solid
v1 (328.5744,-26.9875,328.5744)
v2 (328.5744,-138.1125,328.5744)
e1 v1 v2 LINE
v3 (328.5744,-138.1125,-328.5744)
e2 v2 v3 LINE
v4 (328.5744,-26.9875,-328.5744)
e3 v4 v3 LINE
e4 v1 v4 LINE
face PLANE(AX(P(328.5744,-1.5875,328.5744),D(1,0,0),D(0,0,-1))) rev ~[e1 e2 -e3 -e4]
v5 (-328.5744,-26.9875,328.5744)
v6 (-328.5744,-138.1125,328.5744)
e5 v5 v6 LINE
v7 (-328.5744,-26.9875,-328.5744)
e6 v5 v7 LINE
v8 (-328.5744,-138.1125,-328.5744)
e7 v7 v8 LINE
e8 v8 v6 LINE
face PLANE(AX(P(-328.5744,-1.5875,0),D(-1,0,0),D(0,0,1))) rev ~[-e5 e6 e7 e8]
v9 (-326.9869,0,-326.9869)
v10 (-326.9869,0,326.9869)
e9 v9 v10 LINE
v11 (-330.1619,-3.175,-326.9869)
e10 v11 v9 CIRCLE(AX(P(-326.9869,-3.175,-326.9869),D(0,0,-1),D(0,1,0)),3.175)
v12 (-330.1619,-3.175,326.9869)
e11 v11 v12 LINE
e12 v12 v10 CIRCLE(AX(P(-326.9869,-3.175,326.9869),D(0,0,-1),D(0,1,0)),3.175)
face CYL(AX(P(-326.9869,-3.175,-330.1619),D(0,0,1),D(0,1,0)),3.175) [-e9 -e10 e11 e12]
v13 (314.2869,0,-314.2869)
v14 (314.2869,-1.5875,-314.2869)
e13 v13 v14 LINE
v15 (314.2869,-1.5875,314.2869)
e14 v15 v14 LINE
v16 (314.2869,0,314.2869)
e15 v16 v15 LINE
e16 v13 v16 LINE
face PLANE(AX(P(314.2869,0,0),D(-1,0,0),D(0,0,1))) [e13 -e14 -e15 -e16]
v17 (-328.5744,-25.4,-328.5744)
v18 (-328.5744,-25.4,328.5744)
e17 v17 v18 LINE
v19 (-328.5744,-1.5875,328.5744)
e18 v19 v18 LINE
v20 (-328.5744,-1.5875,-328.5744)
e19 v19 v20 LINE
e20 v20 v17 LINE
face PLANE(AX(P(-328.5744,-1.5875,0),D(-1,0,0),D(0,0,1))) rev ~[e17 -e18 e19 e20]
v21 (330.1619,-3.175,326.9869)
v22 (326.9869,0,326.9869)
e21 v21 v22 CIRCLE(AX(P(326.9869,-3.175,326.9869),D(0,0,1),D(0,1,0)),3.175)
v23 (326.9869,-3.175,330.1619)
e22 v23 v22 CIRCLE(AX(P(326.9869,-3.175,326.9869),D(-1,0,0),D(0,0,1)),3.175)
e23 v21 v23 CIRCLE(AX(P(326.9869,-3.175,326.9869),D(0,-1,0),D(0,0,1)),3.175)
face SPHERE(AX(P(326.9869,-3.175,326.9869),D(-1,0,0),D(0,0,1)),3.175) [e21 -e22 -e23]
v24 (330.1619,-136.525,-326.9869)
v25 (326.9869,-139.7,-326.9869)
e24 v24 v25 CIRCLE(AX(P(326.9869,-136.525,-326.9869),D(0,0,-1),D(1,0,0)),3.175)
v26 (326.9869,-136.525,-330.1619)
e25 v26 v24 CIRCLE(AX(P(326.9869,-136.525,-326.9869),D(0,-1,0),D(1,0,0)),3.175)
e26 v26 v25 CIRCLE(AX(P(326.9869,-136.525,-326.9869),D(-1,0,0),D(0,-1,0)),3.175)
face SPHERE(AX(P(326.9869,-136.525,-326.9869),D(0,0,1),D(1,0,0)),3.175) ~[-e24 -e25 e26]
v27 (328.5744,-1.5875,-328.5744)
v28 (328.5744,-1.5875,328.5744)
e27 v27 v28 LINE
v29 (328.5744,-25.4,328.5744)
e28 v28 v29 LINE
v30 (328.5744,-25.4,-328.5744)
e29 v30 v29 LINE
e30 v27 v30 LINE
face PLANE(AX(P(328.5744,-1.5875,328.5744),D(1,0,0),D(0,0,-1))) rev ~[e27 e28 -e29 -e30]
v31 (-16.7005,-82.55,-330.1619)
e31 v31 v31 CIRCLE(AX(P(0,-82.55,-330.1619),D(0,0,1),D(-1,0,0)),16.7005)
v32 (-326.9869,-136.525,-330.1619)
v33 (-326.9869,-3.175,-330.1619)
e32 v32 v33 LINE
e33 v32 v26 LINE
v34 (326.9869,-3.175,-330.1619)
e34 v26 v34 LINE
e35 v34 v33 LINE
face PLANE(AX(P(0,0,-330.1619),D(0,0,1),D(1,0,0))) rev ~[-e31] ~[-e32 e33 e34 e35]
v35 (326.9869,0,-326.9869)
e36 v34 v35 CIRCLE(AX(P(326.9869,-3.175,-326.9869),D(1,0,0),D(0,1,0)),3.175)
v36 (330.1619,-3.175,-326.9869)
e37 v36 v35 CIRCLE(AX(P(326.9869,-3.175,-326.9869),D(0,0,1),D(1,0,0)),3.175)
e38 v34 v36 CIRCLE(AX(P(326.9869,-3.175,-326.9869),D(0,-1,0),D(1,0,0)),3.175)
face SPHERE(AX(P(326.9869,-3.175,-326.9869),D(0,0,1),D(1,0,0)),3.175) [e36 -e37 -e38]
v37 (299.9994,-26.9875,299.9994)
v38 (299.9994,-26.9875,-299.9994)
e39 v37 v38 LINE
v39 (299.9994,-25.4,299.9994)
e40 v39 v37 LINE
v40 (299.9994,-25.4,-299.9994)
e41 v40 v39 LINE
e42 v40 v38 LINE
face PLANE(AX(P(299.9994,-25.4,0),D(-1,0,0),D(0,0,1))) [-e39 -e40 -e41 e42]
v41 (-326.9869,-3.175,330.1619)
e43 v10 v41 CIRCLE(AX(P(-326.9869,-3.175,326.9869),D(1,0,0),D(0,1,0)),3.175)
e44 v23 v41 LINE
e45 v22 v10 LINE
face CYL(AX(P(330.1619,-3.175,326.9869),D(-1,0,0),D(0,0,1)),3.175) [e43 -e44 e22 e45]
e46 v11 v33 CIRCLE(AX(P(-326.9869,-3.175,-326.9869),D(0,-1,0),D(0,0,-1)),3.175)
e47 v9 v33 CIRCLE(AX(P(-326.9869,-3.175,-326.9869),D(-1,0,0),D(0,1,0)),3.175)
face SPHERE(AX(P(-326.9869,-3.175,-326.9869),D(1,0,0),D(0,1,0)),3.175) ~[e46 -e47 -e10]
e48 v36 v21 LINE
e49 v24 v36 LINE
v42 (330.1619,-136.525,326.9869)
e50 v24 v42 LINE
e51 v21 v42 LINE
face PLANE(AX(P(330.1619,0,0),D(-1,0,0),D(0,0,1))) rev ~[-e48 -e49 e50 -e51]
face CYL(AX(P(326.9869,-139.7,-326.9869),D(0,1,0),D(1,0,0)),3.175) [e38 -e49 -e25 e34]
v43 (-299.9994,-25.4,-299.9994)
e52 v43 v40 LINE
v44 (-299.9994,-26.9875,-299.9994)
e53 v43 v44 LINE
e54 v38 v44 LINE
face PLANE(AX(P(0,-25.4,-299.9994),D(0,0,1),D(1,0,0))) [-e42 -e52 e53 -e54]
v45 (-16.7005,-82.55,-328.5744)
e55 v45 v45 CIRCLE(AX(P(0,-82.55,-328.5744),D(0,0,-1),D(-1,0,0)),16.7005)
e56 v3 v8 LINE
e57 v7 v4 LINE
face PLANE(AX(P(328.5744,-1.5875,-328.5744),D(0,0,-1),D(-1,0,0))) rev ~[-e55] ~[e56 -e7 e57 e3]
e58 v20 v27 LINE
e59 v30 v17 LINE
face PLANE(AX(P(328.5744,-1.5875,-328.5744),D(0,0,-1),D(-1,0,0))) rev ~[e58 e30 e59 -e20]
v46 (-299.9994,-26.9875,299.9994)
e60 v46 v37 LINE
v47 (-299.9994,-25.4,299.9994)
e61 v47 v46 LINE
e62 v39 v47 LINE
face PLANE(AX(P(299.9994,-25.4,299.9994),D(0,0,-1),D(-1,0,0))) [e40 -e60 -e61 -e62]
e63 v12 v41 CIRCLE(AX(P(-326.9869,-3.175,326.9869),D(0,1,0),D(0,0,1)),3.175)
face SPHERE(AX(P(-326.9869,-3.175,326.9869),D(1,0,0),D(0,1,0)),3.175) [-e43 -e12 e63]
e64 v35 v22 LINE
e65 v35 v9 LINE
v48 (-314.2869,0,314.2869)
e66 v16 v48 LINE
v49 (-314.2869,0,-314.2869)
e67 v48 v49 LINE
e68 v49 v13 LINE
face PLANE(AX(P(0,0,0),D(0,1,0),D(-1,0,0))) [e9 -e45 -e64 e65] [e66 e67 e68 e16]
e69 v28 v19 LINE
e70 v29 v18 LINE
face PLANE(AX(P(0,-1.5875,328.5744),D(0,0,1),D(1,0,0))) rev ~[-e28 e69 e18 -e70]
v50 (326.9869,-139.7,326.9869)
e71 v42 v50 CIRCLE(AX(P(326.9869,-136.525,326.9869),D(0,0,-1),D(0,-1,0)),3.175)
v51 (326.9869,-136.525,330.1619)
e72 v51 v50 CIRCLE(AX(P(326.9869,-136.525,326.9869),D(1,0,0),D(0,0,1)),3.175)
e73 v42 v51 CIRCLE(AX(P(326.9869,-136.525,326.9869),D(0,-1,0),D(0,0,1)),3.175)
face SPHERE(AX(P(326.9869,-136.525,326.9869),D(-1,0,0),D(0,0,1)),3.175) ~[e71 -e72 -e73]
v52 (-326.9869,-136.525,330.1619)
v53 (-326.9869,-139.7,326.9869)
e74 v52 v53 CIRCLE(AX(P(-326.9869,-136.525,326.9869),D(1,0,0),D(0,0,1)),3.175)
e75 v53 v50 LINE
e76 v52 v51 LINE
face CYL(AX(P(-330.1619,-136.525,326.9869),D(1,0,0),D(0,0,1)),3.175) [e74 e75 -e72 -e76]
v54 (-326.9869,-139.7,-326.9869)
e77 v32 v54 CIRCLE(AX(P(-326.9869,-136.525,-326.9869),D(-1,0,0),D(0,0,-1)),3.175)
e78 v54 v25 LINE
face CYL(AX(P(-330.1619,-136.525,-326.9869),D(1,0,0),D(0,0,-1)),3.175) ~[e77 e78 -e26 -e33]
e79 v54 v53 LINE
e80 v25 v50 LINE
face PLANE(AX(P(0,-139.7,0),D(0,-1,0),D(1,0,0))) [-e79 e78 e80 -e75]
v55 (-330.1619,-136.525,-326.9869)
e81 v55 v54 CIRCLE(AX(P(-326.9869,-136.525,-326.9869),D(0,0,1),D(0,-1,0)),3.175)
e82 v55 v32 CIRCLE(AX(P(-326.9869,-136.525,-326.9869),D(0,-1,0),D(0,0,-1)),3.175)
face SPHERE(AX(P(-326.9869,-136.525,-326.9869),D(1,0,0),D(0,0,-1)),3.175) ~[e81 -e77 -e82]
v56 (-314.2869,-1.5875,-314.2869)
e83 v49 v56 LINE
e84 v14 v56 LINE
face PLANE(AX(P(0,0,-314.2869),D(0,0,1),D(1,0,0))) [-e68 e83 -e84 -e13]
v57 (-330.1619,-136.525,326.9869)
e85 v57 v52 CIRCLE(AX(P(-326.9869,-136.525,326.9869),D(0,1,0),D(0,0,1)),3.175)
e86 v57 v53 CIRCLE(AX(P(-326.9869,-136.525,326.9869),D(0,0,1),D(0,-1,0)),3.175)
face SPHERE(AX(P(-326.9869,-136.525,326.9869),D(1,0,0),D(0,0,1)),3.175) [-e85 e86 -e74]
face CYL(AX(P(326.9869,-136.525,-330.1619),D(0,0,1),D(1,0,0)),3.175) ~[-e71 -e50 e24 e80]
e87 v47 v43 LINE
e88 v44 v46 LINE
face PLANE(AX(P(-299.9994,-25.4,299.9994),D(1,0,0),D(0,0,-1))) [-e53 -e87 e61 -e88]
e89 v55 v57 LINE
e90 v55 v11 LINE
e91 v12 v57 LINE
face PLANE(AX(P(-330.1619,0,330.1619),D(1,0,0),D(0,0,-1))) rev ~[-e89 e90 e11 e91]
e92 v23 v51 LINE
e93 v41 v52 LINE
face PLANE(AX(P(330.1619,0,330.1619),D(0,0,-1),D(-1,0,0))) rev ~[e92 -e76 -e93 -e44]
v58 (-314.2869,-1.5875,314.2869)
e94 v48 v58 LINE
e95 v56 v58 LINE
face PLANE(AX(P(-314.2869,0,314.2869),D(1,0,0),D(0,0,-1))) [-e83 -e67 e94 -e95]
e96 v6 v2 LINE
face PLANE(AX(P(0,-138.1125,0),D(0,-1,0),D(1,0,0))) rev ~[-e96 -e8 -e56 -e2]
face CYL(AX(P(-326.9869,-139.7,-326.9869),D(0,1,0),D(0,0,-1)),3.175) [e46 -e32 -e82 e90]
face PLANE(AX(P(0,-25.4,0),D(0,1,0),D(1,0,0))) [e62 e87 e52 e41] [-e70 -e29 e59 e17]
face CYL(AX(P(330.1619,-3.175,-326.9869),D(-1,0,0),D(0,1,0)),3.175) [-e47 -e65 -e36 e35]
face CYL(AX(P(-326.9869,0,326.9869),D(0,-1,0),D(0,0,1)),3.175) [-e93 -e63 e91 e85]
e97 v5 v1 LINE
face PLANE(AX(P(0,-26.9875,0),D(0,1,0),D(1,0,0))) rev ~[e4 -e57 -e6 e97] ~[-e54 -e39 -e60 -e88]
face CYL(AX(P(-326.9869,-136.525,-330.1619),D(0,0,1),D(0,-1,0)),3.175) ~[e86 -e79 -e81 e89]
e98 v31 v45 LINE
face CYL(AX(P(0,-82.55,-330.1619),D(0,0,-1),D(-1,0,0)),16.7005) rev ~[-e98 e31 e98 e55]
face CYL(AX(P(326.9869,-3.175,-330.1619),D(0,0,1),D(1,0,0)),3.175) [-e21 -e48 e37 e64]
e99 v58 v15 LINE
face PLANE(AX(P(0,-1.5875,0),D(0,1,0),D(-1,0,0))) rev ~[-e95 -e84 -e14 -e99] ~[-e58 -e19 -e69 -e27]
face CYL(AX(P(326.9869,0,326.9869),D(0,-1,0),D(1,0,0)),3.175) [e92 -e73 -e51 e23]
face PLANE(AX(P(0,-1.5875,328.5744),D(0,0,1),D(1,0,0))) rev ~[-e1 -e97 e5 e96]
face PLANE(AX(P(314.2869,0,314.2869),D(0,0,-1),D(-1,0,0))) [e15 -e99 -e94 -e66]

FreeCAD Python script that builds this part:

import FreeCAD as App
import Part
import Sketcher

V = App.Vector
Q = App.Units.Quantity


def edges_at(feature, points):
    """Names of the edges that pass closest to the given points."""
    edges = feature.Shape.Edges
    near = lambda p: min(range(len(edges)), key=lambda i: edges[i].distToShape(Part.Vertex(*p))[0])
    return sorted({f"Edge{near(p) + 1}" for p in points})

doc = App.newDocument("Part")
body = doc.addObject("PartDesign::Body", "Body")

sketch1 = body.newObject("Sketcher::SketchObject", "Sketch")
sketch1.AttachmentSupport = (doc.getObject("XZ_Plane"), [""])
sketch1.MapMode = "FlatFace"
sketch1.addGeometry([
    Part.LineSegment(V(330.1619, 330.1619, 0), V(330.1619, -330.1619, 0)),
    Part.LineSegment(V(330.1619, -330.1619, 0), V(-330.1619, -330.1619, 0)),
    Part.LineSegment(V(-330.1619, -330.1619, 0), V(-330.1619, 330.1619, 0)),
    Part.LineSegment(V(-330.1619, 330.1619, 0), V(330.1619, 330.1619, 0)),
    Part.LineSegment(V(314.2869, 314.2869, 0), V(-314.2869, 314.2869, 0)),
    Part.LineSegment(V(-314.2869, 314.2869, 0), V(-314.2869, -314.2869, 0)),
    Part.LineSegment(V(-314.2869, -314.2869, 0), V(314.2869, -314.2869, 0)),
    Part.LineSegment(V(314.2869, -314.2869, 0), V(314.2869, 314.2869, 0)),
], False)
sketch1.addConstraint([
    Sketcher.Constraint("Coincident", 0, 2, 1, 1),
    Sketcher.Constraint("Coincident", 1, 2, 2, 1),
    Sketcher.Constraint("Coincident", 2, 2, 3, 1),
    Sketcher.Constraint("Coincident", 3, 2, 0, 1),
    Sketcher.Constraint("Coincident", 4, 2, 5, 1),
    Sketcher.Constraint("Coincident", 5, 2, 6, 1),
    Sketcher.Constraint("Coincident", 6, 2, 7, 1),
    Sketcher.Constraint("Coincident", 7, 2, 4, 1),
    Sketcher.Constraint("Vertical", 0),
    Sketcher.Constraint("Horizontal", 1),
    Sketcher.Constraint("Vertical", 2),
    Sketcher.Constraint("Horizontal", 3),
    Sketcher.Constraint("Horizontal", 4),
    Sketcher.Constraint("Vertical", 5),
    Sketcher.Constraint("Horizontal", 6),
    Sketcher.Constraint("Vertical", 7),
    Sketcher.Constraint("Symmetric", 0, 2, 2, 2, -1, 1),
    Sketcher.Constraint("Symmetric", 4, 2, 6, 2, -1, 1),
    Sketcher.Constraint("Equal", 3, 0),
    Sketcher.Constraint("Equal", 6, 5),
    Sketcher.Constraint("DistanceX", 1, 2, 1, 1, Q("25.997 in")),
    Sketcher.Constraint("DistanceX", 2, 2, 4, 2, Q("0.625 in")),
])
pad1 = body.newObject("PartDesign::Pad", "Pad")
pad1.Profile = sketch1
pad1.Length = Q("0.0625 in")

sketch2 = body.newObject("Sketcher::SketchObject", "Sketch001")
sketch2.AttachmentSupport = (doc.getObject("XZ_Plane"), [""])
sketch2.MapMode = "FlatFace"
sketch2.AttachmentOffset = App.Placement(V(0, 0, 0.0625 * 25.4), App.Rotation())
sketch2.addGeometry([
    Part.LineSegment(V(330.1619, 330.1619, 0), V(-330.1619, 330.1619, 0)),
    Part.LineSegment(V(-330.1619, 330.1619, 0), V(-330.1619, -330.1619, 0)),
    Part.LineSegment(V(-330.1619, -330.1619, 0), V(330.1619, -330.1619, 0)),
    Part.LineSegment(V(330.1619, -330.1619, 0), V(330.1619, 330.1619, 0)),
    Part.LineSegment(V(328.5744, 328.5744, 0), V(328.5744, -328.5744, 0)),
    Part.LineSegment(V(328.5744, -328.5744, 0), V(-328.5744, -328.5744, 0)),
    Part.LineSegment(V(-328.5744, -328.5744, 0), V(-328.5744, 328.5744, 0)),
    Part.LineSegment(V(-328.5744, 328.5744, 0), V(328.5744, 328.5744, 0)),
], False)
sketch2.addConstraint([
    Sketcher.Constraint("Coincident", 0, 2, 1, 1),
    Sketcher.Constraint("Coincident", 1, 2, 2, 1),
    Sketcher.Constraint("Coincident", 2, 2, 3, 1),
    Sketcher.Constraint("Coincident", 3, 2, 0, 1),
    Sketcher.Constraint("Coincident", 4, 2, 5, 1),
    Sketcher.Constraint("Coincident", 5, 2, 6, 1),
    Sketcher.Constraint("Coincident", 6, 2, 7, 1),
    Sketcher.Constraint("Coincident", 7, 2, 4, 1),
    Sketcher.Constraint("Horizontal", 0),
    Sketcher.Constraint("Vertical", 1),
    Sketcher.Constraint("Horizontal", 2),
    Sketcher.Constraint("Vertical", 3),
    Sketcher.Constraint("Vertical", 4),
    Sketcher.Constraint("Horizontal", 5),
    Sketcher.Constraint("Vertical", 6),
    Sketcher.Constraint("Horizontal", 7),
    Sketcher.Constraint("Symmetric", 0, 2, 2, 2, -1, 1),
    Sketcher.Constraint("Symmetric", 4, 2, 6, 2, -1, 1),
    Sketcher.Constraint("Equal", 2, 1),
    Sketcher.Constraint("Equal", 7, 4),
    Sketcher.Constraint("DistanceX", 4, 2, 2, 2, Q("0.0625 in")),
    Sketcher.Constraint("DistanceX", 0, 2, 0, 1, Q("25.997 in")),
])
pad2 = body.newObject("PartDesign::Pad", "Pad001")
pad2.Profile = sketch2
pad2.Length = Q("5.375 in")

sketch3 = body.newObject("Sketcher::SketchObject", "Sketch002")
sketch3.AttachmentSupport = (doc.getObject("XZ_Plane"), [""])
sketch3.MapMode = "FlatFace"
sketch3.AttachmentOffset = App.Placement(V(0, 0, 5.4375 * 25.4), App.Rotation())
sketch3.addGeometry([
    Part.LineSegment(V(-330.1619, 330.1619, 0), V(-330.1619, -330.1619, 0)),
    Part.LineSegment(V(-330.1619, -330.1619, 0), V(330.1619, -330.1619, 0)),
    Part.LineSegment(V(330.1619, -330.1619, 0), V(330.1619, 330.1619, 0)),
    Part.LineSegment(V(330.1619, 330.1619, 0), V(-330.1619, 330.1619, 0)),
], False)
sketch3.addConstraint([
    Sketcher.Constraint("Coincident", 0, 2, 1, 1),
    Sketcher.Constraint("Coincident", 1, 2, 2, 1),
    Sketcher.Constraint("Coincident", 2, 2, 3, 1),
    Sketcher.Constraint("Coincident", 3, 2, 0, 1),
    Sketcher.Constraint("Vertical", 0),
    Sketcher.Constraint("Horizontal", 1),
    Sketcher.Constraint("Vertical", 2),
    Sketcher.Constraint("Horizontal", 3),
    Sketcher.Constraint("Symmetric", 0, 2, 2, 2, -1, 1),
    Sketcher.Constraint("Equal", 3, 0),
    Sketcher.Constraint("DistanceX", 1, 1, 1, 2, Q("25.997 in")),
])
pad3 = body.newObject("PartDesign::Pad", "Pad002")
pad3.Profile = sketch3
pad3.Length = Q("0.0625 in")

sketch4 = body.newObject("Sketcher::SketchObject", "Sketch003")
sketch4.AttachmentSupport = (doc.getObject("XZ_Plane"), [""])
sketch4.MapMode = "FlatFace"
sketch4.AttachmentOffset = App.Placement(V(0, 0, 1 * 25.4), App.Rotation())
sketch4.addGeometry([
    Part.LineSegment(V(328.5744, 328.5744, 0), V(328.5744, -328.5744, 0)),
    Part.LineSegment(V(328.5744, -328.5744, 0), V(-328.5744, -328.5744, 0)),
    Part.LineSegment(V(-328.5744, -328.5744, 0), V(-328.5744, 328.5744, 0)),
    Part.LineSegment(V(-328.5744, 328.5744, 0), V(328.5744, 328.5744, 0)),
    Part.LineSegment(V(299.9994, 299.9994, 0), V(-299.9994, 299.9994, 0)),
    Part.LineSegment(V(-299.9994, 299.9994, 0), V(-299.9994, -299.9994, 0)),
    Part.LineSegment(V(-299.9994, -299.9994, 0), V(299.9994, -299.9994, 0)),
    Part.LineSegment(V(299.9994, -299.9994, 0), V(299.9994, 299.9994, 0)),
], False)
sketch4.addConstraint([
    Sketcher.Constraint("Coincident", 0, 2, 1, 1),
    Sketcher.Constraint("Coincident", 1, 2, 2, 1),
    Sketcher.Constraint("Coincident", 2, 2, 3, 1),
    Sketcher.Constraint("Coincident", 3, 2, 0, 1),
    Sketcher.Constraint("Coincident", 4, 2, 5, 1),
    Sketcher.Constraint("Coincident", 5, 2, 6, 1),
    Sketcher.Constraint("Coincident", 6, 2, 7, 1),
    Sketcher.Constraint("Coincident", 7, 2, 4, 1),
    Sketcher.Constraint("Vertical", 0),
    Sketcher.Constraint("Horizontal", 1),
    Sketcher.Constraint("Vertical", 2),
    Sketcher.Constraint("Horizontal", 3),
    Sketcher.Constraint("Horizontal", 4),
    Sketcher.Constraint("Vertical", 5),
    Sketcher.Constraint("Horizontal", 6),
    Sketcher.Constraint("Vertical", 7),
    Sketcher.Constraint("Symmetric", 0, 2, 2, 2, -1, 1),
    Sketcher.Constraint("Symmetric", 4, 2, 6, 2, -1, 1),
    Sketcher.Constraint("Equal", 3, 0),
    Sketcher.Constraint("Equal", 6, 5),
    Sketcher.Constraint("DistanceX", 1, 2, 1, 1, Q("25.872 in")),
    Sketcher.Constraint("DistanceX", 4, 2, 4, 1, Q("23.622 in")),
])
pad4 = body.newObject("PartDesign::Pad", "Pad003")
pad4.Profile = sketch4
pad4.Length = Q("0.0625 in")
doc.recompute()

fillet = body.newObject("PartDesign::Fillet", "Fillet")
fillet.Base = (pad4, edges_at(pad4, [
    (0, 0, 330.162),
    (0, -139.7, 330.162),
    (330.162, -69.85, 330.162),
    (330.162, -139.7, 0),
    (330.162, 0, 0),
    (330.162, -69.85, -330.162),
    (0, 0, -330.162),
    (-330.162, 0, 0),
    (-330.162, -69.85, 330.162),
    (0, -139.7, -330.162),
    (-330.162, -69.85, -330.162),
    (-330.162, -139.7, 0),
]))
fillet.Radius = Q("0.125 in")

sketch5 = body.newObject("Sketcher::SketchObject", "Sketch004")
sketch5.AttachmentSupport = (doc.getObject("XY_Plane"), [""])
sketch5.MapMode = "FlatFace"
sketch5.AttachmentOffset = App.Placement(V(0, 0, -12.9985 * 25.4), App.Rotation())
sketch5.addGeometry(Part.Circle(V(0, -82.55, 0), V(0, 0, 1), 16.7005), False)
sketch5.addConstraint([
    Sketcher.Constraint("PointOnObject", 0, 3, -2),
    Sketcher.Constraint("Diameter", 0, Q("1.315 in")),
    Sketcher.Constraint("DistanceY", 0, 3, -1, 1, Q("3.25 in")),
])
pocket1 = body.newObject("PartDesign::Pocket", "Pocket")
pocket1.Profile = sketch5
pocket1.Length = Q("0.0625 in")
pocket1.Reversed = True

doc.recompute()
